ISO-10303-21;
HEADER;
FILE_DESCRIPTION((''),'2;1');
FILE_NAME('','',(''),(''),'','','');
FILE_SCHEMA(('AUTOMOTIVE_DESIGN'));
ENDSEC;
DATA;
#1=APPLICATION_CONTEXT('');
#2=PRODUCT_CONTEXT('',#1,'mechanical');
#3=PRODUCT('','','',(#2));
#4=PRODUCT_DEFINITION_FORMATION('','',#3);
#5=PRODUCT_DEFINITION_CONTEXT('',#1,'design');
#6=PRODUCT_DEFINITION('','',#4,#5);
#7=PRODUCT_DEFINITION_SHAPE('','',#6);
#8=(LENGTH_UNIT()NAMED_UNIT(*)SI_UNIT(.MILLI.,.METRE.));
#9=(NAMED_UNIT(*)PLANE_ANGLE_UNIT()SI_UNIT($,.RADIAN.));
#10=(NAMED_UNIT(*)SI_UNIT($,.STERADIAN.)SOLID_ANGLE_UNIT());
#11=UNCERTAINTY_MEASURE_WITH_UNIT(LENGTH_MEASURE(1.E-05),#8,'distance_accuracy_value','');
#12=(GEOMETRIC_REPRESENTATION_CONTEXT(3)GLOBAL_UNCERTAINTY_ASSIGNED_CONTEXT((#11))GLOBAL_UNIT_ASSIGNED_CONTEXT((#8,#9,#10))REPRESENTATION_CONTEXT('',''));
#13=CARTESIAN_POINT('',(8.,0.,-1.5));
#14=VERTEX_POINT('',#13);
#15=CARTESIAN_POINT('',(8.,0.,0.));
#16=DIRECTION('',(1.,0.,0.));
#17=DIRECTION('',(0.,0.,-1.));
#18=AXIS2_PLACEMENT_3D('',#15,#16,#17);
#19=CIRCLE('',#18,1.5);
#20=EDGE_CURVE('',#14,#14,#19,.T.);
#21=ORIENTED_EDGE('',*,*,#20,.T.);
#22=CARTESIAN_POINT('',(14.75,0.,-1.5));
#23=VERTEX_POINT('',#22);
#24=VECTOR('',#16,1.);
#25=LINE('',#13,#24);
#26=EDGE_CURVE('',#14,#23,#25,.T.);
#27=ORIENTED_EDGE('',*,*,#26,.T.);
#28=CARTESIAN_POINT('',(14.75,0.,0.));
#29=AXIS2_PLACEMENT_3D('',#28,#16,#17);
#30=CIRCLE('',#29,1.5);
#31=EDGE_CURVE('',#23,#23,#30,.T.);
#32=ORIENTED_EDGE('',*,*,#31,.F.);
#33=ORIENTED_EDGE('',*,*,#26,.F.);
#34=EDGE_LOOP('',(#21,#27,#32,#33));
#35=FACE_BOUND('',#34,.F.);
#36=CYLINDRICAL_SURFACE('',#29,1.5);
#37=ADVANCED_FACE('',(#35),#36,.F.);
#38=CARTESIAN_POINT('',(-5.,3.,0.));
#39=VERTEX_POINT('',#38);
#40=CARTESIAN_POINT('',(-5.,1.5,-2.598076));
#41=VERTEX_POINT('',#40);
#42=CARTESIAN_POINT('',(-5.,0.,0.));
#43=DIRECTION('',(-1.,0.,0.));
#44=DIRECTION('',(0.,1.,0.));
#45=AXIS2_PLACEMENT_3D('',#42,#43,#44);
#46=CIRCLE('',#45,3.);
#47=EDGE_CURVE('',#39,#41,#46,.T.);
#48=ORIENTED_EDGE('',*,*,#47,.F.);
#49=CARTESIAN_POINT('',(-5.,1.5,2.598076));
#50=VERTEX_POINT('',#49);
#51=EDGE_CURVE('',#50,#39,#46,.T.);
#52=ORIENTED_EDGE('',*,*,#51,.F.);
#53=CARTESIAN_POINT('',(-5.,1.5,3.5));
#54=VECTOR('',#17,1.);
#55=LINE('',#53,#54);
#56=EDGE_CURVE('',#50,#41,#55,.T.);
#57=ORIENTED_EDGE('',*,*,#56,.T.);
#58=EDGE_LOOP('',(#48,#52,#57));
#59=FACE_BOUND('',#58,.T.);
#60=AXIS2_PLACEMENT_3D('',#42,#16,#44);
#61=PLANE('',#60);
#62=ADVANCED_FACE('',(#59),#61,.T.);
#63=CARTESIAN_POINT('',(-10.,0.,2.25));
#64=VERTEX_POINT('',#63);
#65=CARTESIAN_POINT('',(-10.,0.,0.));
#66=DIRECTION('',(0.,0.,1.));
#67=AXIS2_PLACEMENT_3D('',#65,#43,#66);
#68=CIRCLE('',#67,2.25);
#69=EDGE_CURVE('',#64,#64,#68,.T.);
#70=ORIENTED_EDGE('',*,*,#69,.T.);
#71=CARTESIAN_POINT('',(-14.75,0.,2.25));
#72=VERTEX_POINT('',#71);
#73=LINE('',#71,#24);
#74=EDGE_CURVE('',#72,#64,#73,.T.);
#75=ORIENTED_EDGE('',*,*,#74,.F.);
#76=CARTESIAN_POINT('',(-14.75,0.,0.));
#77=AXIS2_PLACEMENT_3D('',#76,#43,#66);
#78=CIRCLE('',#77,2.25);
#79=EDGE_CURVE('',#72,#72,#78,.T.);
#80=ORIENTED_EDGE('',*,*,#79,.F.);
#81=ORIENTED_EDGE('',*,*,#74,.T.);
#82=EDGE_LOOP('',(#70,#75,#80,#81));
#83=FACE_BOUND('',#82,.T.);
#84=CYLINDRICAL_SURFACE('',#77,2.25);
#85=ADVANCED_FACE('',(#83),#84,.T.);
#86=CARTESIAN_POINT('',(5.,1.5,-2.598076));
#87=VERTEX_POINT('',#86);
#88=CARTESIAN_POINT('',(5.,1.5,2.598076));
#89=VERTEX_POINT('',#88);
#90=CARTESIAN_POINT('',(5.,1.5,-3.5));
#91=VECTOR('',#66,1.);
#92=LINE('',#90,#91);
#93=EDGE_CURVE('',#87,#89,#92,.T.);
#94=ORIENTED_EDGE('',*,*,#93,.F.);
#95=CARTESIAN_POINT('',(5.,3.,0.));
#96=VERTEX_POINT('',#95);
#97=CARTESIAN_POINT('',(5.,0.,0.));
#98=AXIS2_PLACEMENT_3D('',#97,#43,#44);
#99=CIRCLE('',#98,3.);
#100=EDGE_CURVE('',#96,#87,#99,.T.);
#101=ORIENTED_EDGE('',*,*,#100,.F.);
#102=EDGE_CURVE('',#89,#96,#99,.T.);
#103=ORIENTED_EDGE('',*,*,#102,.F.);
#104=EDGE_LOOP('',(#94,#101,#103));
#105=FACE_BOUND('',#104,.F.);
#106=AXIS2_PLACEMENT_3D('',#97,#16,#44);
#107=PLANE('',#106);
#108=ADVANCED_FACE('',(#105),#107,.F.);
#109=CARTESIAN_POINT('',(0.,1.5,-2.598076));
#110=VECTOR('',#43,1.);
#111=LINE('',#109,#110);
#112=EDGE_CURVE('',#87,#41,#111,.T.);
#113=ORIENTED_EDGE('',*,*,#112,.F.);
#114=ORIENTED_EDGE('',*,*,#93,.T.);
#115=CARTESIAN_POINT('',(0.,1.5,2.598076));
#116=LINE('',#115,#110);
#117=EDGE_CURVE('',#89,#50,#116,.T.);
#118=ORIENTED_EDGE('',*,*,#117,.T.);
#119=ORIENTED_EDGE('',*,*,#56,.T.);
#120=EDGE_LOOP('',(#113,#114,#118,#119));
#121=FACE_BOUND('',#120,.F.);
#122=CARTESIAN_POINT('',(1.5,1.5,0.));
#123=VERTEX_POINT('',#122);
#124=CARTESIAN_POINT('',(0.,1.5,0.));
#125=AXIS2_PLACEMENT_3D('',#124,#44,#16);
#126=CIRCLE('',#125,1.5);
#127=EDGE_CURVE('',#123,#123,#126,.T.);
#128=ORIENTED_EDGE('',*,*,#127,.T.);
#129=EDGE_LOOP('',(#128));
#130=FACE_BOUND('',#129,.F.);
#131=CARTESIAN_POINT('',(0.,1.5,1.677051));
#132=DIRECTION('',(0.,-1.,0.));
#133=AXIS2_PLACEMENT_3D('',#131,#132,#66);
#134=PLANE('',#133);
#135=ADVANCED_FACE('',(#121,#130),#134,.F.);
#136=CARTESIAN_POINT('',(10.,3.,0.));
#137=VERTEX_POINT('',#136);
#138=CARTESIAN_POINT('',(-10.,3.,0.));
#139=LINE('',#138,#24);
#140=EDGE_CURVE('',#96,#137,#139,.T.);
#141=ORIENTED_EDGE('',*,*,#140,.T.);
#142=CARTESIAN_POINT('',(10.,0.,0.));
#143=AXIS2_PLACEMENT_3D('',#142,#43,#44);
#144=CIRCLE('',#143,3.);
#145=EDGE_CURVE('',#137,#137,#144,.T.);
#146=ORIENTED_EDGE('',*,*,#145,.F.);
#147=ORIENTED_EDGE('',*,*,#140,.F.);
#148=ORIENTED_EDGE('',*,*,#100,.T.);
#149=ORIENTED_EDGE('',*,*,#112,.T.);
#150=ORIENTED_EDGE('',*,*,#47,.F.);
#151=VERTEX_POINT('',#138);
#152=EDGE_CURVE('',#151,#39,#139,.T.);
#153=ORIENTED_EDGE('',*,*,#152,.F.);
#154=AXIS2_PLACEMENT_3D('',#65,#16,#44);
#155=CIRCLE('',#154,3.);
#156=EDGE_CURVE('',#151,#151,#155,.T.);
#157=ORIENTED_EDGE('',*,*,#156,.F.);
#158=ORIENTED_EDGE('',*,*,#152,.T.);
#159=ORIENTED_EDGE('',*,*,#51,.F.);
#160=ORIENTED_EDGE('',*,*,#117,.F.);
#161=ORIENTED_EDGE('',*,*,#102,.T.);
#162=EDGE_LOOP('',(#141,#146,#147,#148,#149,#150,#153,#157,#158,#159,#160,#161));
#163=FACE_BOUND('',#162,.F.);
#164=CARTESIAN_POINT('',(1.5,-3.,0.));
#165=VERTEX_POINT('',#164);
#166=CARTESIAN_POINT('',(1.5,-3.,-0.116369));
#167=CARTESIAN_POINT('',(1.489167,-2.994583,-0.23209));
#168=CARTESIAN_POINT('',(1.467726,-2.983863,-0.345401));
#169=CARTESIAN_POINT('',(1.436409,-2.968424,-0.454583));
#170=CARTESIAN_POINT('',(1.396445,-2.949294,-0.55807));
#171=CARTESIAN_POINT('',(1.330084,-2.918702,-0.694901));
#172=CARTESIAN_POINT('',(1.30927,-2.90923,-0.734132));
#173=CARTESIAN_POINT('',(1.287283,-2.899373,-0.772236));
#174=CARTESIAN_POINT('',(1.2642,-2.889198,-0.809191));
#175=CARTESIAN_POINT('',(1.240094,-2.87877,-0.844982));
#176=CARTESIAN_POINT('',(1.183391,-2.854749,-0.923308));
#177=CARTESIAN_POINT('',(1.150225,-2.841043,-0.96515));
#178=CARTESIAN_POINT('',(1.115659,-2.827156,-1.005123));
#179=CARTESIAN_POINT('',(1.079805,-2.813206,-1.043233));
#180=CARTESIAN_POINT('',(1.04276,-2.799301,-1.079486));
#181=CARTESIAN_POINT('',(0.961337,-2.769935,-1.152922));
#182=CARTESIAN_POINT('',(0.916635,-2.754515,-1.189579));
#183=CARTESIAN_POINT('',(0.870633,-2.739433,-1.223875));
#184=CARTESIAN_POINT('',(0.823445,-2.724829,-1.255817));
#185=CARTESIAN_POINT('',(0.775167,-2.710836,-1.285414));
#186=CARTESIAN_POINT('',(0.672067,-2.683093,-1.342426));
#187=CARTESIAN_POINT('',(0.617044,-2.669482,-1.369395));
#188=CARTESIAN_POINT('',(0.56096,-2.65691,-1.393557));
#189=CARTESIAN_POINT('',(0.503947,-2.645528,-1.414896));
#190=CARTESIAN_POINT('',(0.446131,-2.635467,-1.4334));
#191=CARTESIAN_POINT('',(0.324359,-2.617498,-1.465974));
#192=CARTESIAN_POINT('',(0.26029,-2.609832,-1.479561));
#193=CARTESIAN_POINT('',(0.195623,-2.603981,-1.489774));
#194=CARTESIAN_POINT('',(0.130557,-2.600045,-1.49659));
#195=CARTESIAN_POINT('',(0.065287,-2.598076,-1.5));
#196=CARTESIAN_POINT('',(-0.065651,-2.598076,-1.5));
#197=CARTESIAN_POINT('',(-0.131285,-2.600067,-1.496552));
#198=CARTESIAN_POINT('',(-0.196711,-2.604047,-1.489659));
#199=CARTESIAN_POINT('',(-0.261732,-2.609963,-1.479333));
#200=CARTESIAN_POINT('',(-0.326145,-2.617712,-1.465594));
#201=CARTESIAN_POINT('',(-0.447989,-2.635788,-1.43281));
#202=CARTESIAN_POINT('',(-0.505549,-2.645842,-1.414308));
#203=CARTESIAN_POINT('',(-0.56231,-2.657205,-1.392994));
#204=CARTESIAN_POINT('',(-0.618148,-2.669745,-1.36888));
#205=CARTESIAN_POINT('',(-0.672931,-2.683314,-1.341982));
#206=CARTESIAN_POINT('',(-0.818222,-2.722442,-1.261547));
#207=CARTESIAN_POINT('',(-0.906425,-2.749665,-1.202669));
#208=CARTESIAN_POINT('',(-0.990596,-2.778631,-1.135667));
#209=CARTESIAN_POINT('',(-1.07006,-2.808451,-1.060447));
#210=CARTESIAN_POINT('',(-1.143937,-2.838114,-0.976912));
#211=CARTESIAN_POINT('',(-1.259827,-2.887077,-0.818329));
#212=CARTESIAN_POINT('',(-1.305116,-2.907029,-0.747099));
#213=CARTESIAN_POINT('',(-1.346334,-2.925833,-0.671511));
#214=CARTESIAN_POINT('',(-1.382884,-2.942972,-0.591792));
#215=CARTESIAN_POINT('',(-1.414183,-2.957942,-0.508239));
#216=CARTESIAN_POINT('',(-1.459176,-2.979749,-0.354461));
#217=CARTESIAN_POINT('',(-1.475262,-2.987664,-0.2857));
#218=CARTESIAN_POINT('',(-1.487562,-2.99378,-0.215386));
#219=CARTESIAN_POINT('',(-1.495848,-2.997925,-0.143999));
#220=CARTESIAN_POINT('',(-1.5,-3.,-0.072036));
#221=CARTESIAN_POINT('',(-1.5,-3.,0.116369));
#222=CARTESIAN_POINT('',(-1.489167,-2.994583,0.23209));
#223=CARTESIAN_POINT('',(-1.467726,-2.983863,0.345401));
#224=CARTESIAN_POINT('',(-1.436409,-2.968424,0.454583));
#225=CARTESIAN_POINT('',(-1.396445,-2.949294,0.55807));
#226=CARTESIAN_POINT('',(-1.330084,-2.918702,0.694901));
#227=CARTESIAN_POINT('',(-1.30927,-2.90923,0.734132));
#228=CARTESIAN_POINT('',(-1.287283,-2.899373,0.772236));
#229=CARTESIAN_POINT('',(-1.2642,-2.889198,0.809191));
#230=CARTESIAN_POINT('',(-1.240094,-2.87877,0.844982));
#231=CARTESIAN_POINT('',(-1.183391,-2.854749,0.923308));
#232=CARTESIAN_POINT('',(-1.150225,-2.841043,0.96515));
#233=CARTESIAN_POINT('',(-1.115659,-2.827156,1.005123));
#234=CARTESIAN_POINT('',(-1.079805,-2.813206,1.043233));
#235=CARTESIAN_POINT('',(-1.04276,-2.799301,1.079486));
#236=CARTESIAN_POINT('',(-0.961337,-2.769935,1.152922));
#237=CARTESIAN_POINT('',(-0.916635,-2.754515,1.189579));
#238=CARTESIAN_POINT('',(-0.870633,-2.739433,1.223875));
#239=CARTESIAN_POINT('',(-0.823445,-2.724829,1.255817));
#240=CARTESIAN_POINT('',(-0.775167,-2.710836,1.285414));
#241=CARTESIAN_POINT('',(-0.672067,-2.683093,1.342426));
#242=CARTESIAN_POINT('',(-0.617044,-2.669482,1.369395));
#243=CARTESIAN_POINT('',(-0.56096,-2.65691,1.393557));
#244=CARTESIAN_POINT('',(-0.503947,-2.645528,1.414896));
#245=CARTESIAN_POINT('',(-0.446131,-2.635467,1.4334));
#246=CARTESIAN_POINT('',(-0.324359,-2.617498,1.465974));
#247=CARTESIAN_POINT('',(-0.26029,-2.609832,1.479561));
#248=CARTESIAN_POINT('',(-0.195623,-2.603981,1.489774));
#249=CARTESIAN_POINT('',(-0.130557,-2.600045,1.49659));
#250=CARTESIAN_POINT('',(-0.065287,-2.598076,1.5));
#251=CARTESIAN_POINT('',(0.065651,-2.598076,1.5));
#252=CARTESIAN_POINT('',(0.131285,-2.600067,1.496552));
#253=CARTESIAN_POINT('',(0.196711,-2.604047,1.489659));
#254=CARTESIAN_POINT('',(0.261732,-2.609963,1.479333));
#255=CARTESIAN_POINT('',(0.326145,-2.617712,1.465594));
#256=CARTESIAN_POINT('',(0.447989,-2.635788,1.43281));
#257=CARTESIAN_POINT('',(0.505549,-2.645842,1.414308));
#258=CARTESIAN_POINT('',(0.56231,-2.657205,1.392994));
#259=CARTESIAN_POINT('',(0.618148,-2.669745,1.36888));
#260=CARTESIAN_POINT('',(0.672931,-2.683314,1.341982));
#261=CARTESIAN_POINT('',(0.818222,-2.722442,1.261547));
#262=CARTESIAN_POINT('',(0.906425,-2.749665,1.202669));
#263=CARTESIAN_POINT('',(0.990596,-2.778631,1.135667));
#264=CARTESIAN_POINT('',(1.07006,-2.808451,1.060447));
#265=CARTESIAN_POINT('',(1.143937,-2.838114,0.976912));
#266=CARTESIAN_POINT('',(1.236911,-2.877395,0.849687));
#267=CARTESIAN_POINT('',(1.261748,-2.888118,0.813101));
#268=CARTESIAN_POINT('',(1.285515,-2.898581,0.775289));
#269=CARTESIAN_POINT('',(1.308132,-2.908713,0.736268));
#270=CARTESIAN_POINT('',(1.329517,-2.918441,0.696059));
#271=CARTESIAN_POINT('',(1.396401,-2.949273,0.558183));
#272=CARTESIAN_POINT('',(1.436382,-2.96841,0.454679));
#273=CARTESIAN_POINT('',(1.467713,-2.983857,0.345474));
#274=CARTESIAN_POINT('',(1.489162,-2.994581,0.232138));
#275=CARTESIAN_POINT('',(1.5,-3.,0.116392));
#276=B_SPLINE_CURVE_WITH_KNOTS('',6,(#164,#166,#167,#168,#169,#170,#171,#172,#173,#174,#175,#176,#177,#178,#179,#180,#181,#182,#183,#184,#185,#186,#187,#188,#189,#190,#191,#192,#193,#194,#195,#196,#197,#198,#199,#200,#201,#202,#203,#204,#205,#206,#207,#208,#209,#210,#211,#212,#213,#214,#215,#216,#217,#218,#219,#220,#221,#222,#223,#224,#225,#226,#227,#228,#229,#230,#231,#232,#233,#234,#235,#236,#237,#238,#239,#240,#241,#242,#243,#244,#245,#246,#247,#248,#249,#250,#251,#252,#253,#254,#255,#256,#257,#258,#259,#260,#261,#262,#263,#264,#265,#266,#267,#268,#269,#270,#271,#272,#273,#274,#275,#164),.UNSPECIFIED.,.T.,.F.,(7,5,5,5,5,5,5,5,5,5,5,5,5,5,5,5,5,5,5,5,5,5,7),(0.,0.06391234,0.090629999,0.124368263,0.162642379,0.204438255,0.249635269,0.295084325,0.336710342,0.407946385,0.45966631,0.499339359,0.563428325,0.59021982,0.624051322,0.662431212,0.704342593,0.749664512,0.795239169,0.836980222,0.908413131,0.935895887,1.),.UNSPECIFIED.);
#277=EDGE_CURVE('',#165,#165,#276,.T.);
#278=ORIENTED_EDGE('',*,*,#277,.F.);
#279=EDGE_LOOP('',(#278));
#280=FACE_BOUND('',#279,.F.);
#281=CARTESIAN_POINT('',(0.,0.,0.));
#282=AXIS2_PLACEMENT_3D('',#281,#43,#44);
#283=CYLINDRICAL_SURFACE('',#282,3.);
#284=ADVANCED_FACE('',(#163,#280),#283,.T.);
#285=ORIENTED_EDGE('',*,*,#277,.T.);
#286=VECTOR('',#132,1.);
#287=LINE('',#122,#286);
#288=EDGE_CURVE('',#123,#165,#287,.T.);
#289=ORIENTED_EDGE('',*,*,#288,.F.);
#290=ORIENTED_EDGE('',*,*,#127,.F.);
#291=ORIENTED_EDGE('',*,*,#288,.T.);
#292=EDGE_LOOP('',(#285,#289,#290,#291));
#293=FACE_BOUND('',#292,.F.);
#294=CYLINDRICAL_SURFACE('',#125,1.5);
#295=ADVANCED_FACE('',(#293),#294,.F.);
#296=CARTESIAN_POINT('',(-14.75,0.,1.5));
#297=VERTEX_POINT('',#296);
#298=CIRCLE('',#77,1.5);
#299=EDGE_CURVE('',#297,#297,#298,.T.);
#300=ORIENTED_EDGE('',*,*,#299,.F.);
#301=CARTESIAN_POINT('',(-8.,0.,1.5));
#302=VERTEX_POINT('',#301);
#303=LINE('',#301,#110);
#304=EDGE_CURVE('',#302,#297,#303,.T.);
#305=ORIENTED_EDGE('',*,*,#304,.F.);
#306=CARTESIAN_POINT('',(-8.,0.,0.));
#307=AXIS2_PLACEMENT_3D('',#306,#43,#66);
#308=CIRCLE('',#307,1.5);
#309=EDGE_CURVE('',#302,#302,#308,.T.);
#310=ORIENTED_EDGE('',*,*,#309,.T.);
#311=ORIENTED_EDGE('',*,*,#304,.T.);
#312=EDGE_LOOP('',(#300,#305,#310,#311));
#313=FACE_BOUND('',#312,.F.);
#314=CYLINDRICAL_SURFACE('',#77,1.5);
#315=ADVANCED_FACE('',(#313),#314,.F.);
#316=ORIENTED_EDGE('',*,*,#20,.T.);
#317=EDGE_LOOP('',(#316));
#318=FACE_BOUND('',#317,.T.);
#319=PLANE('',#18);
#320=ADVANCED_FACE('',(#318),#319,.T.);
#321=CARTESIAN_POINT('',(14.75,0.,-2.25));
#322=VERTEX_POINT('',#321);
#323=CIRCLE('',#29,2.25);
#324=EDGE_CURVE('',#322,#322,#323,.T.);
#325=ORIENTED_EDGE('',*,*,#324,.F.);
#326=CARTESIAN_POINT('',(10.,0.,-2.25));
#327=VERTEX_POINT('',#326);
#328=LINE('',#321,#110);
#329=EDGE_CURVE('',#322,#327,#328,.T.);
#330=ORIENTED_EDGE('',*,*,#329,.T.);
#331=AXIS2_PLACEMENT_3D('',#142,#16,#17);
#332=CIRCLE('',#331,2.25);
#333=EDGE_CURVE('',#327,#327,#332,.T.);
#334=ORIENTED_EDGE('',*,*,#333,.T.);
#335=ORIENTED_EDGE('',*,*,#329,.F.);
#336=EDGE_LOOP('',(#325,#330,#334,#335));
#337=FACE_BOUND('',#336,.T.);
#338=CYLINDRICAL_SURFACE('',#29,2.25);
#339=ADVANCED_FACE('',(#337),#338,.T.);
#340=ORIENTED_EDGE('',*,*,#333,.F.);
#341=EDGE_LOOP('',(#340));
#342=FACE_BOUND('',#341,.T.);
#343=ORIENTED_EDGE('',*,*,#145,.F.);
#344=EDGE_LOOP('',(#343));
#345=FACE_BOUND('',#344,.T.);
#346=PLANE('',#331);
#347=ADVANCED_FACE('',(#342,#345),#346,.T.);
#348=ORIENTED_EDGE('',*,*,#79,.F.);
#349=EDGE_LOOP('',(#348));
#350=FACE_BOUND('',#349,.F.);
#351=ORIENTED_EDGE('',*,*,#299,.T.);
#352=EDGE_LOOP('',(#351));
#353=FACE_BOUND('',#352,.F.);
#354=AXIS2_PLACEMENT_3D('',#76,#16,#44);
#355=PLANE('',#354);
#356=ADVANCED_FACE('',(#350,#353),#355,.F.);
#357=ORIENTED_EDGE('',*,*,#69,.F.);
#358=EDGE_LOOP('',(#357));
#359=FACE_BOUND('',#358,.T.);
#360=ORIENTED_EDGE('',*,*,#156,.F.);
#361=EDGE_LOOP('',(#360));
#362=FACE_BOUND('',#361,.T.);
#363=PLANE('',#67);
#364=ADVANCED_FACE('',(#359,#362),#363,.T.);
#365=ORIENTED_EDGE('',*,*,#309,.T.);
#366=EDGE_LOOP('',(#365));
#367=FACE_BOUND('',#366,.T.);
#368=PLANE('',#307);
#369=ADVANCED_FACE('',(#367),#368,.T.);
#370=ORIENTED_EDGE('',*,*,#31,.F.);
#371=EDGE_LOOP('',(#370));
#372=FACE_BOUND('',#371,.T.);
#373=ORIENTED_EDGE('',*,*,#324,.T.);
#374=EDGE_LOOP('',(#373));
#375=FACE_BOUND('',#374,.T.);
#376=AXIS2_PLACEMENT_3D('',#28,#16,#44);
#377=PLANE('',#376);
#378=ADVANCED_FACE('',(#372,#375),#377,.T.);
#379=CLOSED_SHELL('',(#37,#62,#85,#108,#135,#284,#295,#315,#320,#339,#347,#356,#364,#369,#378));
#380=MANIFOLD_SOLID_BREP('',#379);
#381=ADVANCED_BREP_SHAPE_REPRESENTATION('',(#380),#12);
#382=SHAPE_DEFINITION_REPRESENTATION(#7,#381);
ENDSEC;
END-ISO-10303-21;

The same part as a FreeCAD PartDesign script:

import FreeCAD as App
import Part
import Sketcher
from FreeCAD import Vector
Q = App.Units.Quantity

doc = App.newDocument("Part")
body = doc.addObject("PartDesign::Body", "Body")

# Sketch on YZ plane
sketch1 = doc.addObject("Sketcher::SketchObject", "Sketch")
body.addObject(sketch1)
sketch1.AttachmentSupport = (doc.YZ_Plane, [""])
sketch1.MapMode = "FlatFace"
sketch1.addGeometry(Part.Circle(Vector(0, 0, 0), Vector(0, 0, 1), 3), False)
sketch1.addConstraint([
    Sketcher.Constraint("Coincident", 0, 3, -1, 1),
    Sketcher.Constraint("Diameter", 0, Q("6 mm")),
])
pad1 = doc.addObject("PartDesign::Pad", "Pad")
body.addObject(pad1)
pad1.Profile = sketch1
pad1.Length = 29.5
pad1.Midplane = True

# Sketch on YZ plane
sketch2 = doc.addObject("Sketcher::SketchObject", "Sketch001")
body.addObject(sketch2)
sketch2.AttachmentSupport = (doc.YZ_Plane, [""])
sketch2.MapMode = "FlatFace"
sketch2.AttachmentOffset = App.Placement(Vector(0, 0, 14.75), App.Rotation())
sketch2.addGeometry([
    Part.Circle(Vector(0, 0, 0), Vector(0, 0, 1), 1.5),
    Part.Circle(Vector(0, 0, 0), Vector(0, 0, 1), 3),
    Part.Circle(Vector(0, 0, 0), Vector(0, 0, 1), 2.25),
], False)
sketch2.addConstraint([
    Sketcher.Constraint("Coincident", 0, 3, -1, 1),
    Sketcher.Constraint("Coincident", 1, 3, -1, 1),
    Sketcher.Constraint("Coincident", 2, 3, -1, 1),
    Sketcher.Constraint("Diameter", 0, Q("3 mm")),
    Sketcher.Constraint("Diameter", 1, Q("6 mm")),
    Sketcher.Constraint("Diameter", 2, Q("4.5 mm")),
])
pocket1 = doc.addObject("PartDesign::Pocket", "Pocket")
body.addObject(pocket1)
pocket1.Profile = sketch2
pocket1.Length = 4.75

# Sketch on YZ plane
sketch3 = doc.addObject("Sketcher::SketchObject", "Sketch002")
body.addObject(sketch3)
sketch3.AttachmentSupport = (doc.YZ_Plane, [""])
sketch3.MapMode = "FlatFace"
sketch3.AttachmentOffset = App.Placement(Vector(0, 0, -14.75), App.Rotation())
sketch3.addGeometry([
    Part.Circle(Vector(0, 0, 0), Vector(0, 0, 1), 1.5),
    Part.Circle(Vector(0, 0, 0), Vector(0, 0, 1), 3),
    Part.Circle(Vector(0, 0, 0), Vector(0, 0, 1), 2.25),
], False)
sketch3.addConstraint([
    Sketcher.Constraint("Coincident", 0, 3, -1, 1),
    Sketcher.Constraint("Coincident", 1, 3, -1, 1),
    Sketcher.Constraint("Coincident", 2, 3, -1, 1),
    Sketcher.Constraint("Diameter", 0, Q("3 mm")),
    Sketcher.Constraint("Diameter", 1, Q("6 mm")),
    Sketcher.Constraint("Diameter", 2, Q("4.5 mm")),
])
pocket2 = doc.addObject("PartDesign::Pocket", "Pocket001")
body.addObject(pocket2)
pocket2.Profile = sketch3
pocket2.Length = 4.75
pocket2.Reversed = True

# Sketch on YZ plane
sketch4 = doc.addObject("Sketcher::SketchObject", "Sketch003")
body.addObject(sketch4)
sketch4.AttachmentSupport = (doc.YZ_Plane, [""])
sketch4.MapMode = "FlatFace"
sketch4.addGeometry([
    Part.LineSegment(Vector(1.5, -3.5, 0), Vector(3, -3.5, 0)),
    Part.LineSegment(Vector(3, -3.5, 0), Vector(3, 3.5, 0)),
    Part.LineSegment(Vector(3, 3.5, 0), Vector(1.5, 3.5, 0)),
    Part.LineSegment(Vector(1.5, 3.5, 0), Vector(1.5, -3.5, 0)),
], False)
sketch4.addConstraint([
    Sketcher.Constraint("Coincident", 0, 2, 1, 1),
    Sketcher.Constraint("Coincident", 1, 2, 2, 1),
    Sketcher.Constraint("Coincident", 2, 2, 3, 1),
    Sketcher.Constraint("Coincident", 3, 2, 0, 1),
    Sketcher.Constraint("Horizontal", 0),
    Sketcher.Constraint("Vertical", 1),
    Sketcher.Constraint("Horizontal", 2),
    Sketcher.Constraint("Vertical", 3),
    Sketcher.Constraint("DistanceY", 1, 1, 1, 2, Q("7 mm")),
    Sketcher.Constraint("DistanceX", 0, 1, 0, 2, Q("1.5 mm")),
    Sketcher.Constraint("DistanceX", -1, 1, 2, 2, Q("1.5 mm")),
    Sketcher.Constraint("DistanceY", 0, 2, -1, 1, Q("3.5 mm")),
])
pocket3 = doc.addObject("PartDesign::Pocket", "Pocket002")
body.addObject(pocket3)
pocket3.Profile = sketch4
pocket3.Length = 10
pocket3.Midplane = True

# Sketch on XZ plane
sketch5 = doc.addObject("Sketcher::SketchObject", "Sketch004")
body.addObject(sketch5)
sketch5.AttachmentSupport = (doc.XZ_Plane, [""])
sketch5.MapMode = "FlatFace"
sketch5.AttachmentOffset = App.Placement(Vector(0, 0, -1.5), App.Rotation())
sketch5.addGeometry(Part.Circle(Vector(0, 0, 0), Vector(0, 0, 1), 1.5), False)
sketch5.addConstraint([
    Sketcher.Constraint("Coincident", 0, 3, -1, 1),
    Sketcher.Constraint("Diameter", 0, Q("3 mm")),
])
pocket4 = doc.addObject("PartDesign::Pocket", "Pocket003")
body.addObject(pocket4)
pocket4.Profile = sketch5
pocket4.Type = "ThroughAll"
pocket4.Reversed = True

# Sketch on YZ plane
sketch6 = doc.addObject("Sketcher::SketchObject", "Sketch005")
body.addObject(sketch6)
sketch6.AttachmentSupport = (doc.YZ_Plane, [""])
sketch6.MapMode = "FlatFace"
sketch6.AttachmentOffset = App.Placement(Vector(0, 0, 10), App.Rotation())
sketch6.addGeometry(Part.Circle(Vector(0, 0, 0), Vector(0, 0, 1), 1.5), False)
sketch6.addConstraint([
    Sketcher.Constraint("Coincident", 0, 3, -1, 1),
    Sketcher.Constraint("Diameter", 0, Q("3 mm")),
])
pocket5 = doc.addObject("PartDesign::Pocket", "Pocket004")
body.addObject(pocket5)
pocket5.Profile = sketch6
pocket5.Length = 2

# Sketch on YZ plane
sketch7 = doc.addObject("Sketcher::SketchObject", "Sketch006")
body.addObject(sketch7)
sketch7.AttachmentSupport = (doc.YZ_Plane, [""])
sketch7.MapMode = "FlatFace"
sketch7.AttachmentOffset = App.Placement(Vector(0, 0, -10), App.Rotation())
sketch7.addGeometry(Part.Circle(Vector(0, 0, 0), Vector(0, 0, 1), 1.5), False)
sketch7.addConstraint([
    Sketcher.Constraint("Coincident", 0, 3, -1, 1),
    Sketcher.Constraint("Diameter", 0, Q("3 mm")),
])
pocket6 = doc.addObject("PartDesign::Pocket", "Pocket005")
body.addObject(pocket6)
pocket6.Profile = sketch7
pocket6.Length = 2
pocket6.Reversed = True

doc.recompute()
